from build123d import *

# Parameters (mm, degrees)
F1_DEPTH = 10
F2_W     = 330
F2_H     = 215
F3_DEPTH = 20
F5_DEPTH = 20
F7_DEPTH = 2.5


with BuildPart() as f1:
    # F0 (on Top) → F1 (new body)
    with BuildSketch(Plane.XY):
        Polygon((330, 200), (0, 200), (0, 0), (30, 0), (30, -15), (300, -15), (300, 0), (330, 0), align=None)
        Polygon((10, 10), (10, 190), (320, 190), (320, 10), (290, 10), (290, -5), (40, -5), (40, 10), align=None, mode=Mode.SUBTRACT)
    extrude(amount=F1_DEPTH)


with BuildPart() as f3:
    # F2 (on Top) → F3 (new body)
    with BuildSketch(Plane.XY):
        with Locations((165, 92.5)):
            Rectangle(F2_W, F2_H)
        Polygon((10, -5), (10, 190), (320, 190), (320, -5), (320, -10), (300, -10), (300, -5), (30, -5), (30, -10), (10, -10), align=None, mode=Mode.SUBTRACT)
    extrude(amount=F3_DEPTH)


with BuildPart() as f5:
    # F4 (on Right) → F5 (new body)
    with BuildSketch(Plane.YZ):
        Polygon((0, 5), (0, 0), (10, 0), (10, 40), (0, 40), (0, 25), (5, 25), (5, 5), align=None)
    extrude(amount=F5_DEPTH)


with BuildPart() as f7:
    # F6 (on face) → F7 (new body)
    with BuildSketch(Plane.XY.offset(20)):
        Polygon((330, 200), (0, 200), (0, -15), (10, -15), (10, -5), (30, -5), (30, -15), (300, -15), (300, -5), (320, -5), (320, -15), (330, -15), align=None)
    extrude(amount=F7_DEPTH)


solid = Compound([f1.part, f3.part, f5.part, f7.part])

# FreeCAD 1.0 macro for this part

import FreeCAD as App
import Part
import Sketcher

V = App.Vector

doc = App.newDocument("Part")
body = doc.addObject("PartDesign::Body", "Body")

sketch1 = body.newObject("Sketcher::SketchObject", "Sketch")
sketch1.AttachmentSupport = (doc.getObject("XY_Plane"), [""])
sketch1.MapMode = "FlatFace"
sketch1.addGeometry([
    Part.LineSegment(V(330, 200, 0), V(0, 200, 0)),
    Part.LineSegment(V(0, 200, 0), V(0, 0, 0)),
    Part.LineSegment(V(0, 0, 0), V(30, 0, 0)),
    Part.LineSegment(V(30, 0, 0), V(30, -15, 0)),
    Part.LineSegment(V(30, -15, 0), V(300, -15, 0)),
    Part.LineSegment(V(300, -15, 0), V(300, 0, 0)),
    Part.LineSegment(V(300, 0, 0), V(330, 0, 0)),
    Part.LineSegment(V(330, 0, 0), V(330, 200, 0)),
    Part.LineSegment(V(40, 10, 0), V(10, 10, 0)),
    Part.LineSegment(V(10, 10, 0), V(10, 190, 0)),
    Part.LineSegment(V(10, 190, 0), V(320, 190, 0)),
    Part.LineSegment(V(320, 190, 0), V(320, 10, 0)),
    Part.LineSegment(V(320, 10, 0), V(290, 10, 0)),
    Part.LineSegment(V(290, 10, 0), V(290, -5, 0)),
    Part.LineSegment(V(290, -5, 0), V(40, -5, 0)),
    Part.LineSegment(V(40, -5, 0), V(40, 10, 0)),
], False)
sketch1.addConstraint([
    Sketcher.Constraint("Coincident", 0, 2, 1, 1),
    Sketcher.Constraint("Coincident", 1, 2, 2, 1),
    Sketcher.Constraint("Coincident", 2, 2, 3, 1),
    Sketcher.Constraint("Coincident", 3, 2, 4, 1),
    Sketcher.Constraint("Coincident", 4, 2, 5, 1),
    Sketcher.Constraint("Coincident", 5, 2, 6, 1),
    Sketcher.Constraint("Coincident", 6, 2, 7, 1),
    Sketcher.Constraint("Coincident", 7, 2, 0, 1),
    Sketcher.Constraint("Coincident", 8, 2, 9, 1),
    Sketcher.Constraint("Coincident", 9, 2, 10, 1),
    Sketcher.Constraint("Coincident", 10, 2, 11, 1),
    Sketcher.Constraint("Coincident", 11, 2, 12, 1),
    Sketcher.Constraint("Coincident", 12, 2, 13, 1),
    Sketcher.Constraint("Coincident", 13, 2, 14, 1),
    Sketcher.Constraint("Coincident", 14, 2, 15, 1),
    Sketcher.Constraint("Coincident", 15, 2, 8, 1),
    Sketcher.Constraint("Horizontal", 0),
    Sketcher.Constraint("Vertical", 1),
    Sketcher.Constraint("Horizontal", 2),
    Sketcher.Constraint("Vertical", 3),
    Sketcher.Constraint("Horizontal", 4),
    Sketcher.Constraint("Vertical", 5),
    Sketcher.Constraint("Horizontal", 6),
    Sketcher.Constraint("Vertical", 7),
    Sketcher.Constraint("Horizontal", 8),
    Sketcher.Constraint("Vertical", 9),
    Sketcher.Constraint("Horizontal", 10),
    Sketcher.Constraint("Vertical", 11),
    Sketcher.Constraint("Horizontal", 12),
    Sketcher.Constraint("Vertical", 13),
    Sketcher.Constraint("Horizontal", 14),
    Sketcher.Constraint("Vertical", 15),
    Sketcher.Constraint("Coincident", 1, 2, -1, 1),
    Sketcher.Constraint("PointOnObject", 5, 2, -1),
    Sketcher.Constraint("Horizontal", 8, 2, 11, 2),
    Sketcher.Constraint("Equal", 2, 6),
    Sketcher.Constraint("Equal", 6, 8),
    Sketcher.Constraint("Equal", 8, 12),
    Sketcher.Constraint("Equal", 5, 13),
    Sketcher.Constraint("DistanceX", 0, 2, 0, 1, 330.0),
    Sketcher.Constraint("DistanceX", 2, 1, 2, 2, 30.0),
    Sketcher.Constraint("DistanceX", 10, 1, 10, 2, 310.0),
    Sketcher.Constraint("DistanceY", 1, 2, 1, 1, 200.0),
    Sketcher.Constraint("DistanceY", 3, 2, 3, 1, 15.0),
    Sketcher.Constraint("DistanceY", 9, 1, 9, 2, 180.0),
    Sketcher.Constraint("DistanceX", -1, 1, 8, 2, 10.0),
    Sketcher.Constraint("DistanceY", -1, 1, 8, 2, 10.0),
])
pad1 = body.newObject("PartDesign::Pad", "Pad")
pad1.Profile = sketch1
pad1.Length = 10
body2 = doc.addObject("PartDesign::Body", "Body001")

sketch2 = body2.newObject("Sketcher::SketchObject", "Sketch001")
sketch2.AttachmentSupport = (doc.getObject("XY_Plane001"), [""])
sketch2.MapMode = "FlatFace"
sketch2.addGeometry([
    Part.LineSegment(V(0, 200, 0), V(0, -15, 0)),
    Part.LineSegment(V(0, -15, 0), V(330, -15, 0)),
    Part.LineSegment(V(330, -15, 0), V(330, 200, 0)),
    Part.LineSegment(V(330, 200, 0), V(0, 200, 0)),
    Part.LineSegment(V(10, -10, 0), V(10, 190, 0)),
    Part.LineSegment(V(10, 190, 0), V(320, 190, 0)),
    Part.LineSegment(V(320, 190, 0), V(320, -10, 0)),
    Part.LineSegment(V(320, -10, 0), V(300, -10, 0)),
    Part.LineSegment(V(300, -10, 0), V(300, -5, 0)),
    Part.LineSegment(V(300, -5, 0), V(30, -5, 0)),
    Part.LineSegment(V(30, -5, 0), V(30, -10, 0)),
    Part.LineSegment(V(30, -10, 0), V(10, -10, 0)),
], False)
sketch2.addConstraint([
    Sketcher.Constraint("Coincident", 0, 2, 1, 1),
    Sketcher.Constraint("Coincident", 1, 2, 2, 1),
    Sketcher.Constraint("Coincident", 2, 2, 3, 1),
    Sketcher.Constraint("Coincident", 3, 2, 0, 1),
    Sketcher.Constraint("Coincident", 4, 2, 5, 1),
    Sketcher.Constraint("Coincident", 5, 2, 6, 1),
    Sketcher.Constraint("Coincident", 6, 2, 7, 1),
    Sketcher.Constraint("Coincident", 7, 2, 8, 1),
    Sketcher.Constraint("Coincident", 8, 2, 9, 1),
    Sketcher.Constraint("Coincident", 9, 2, 10, 1),
    Sketcher.Constraint("Coincident", 10, 2, 11, 1),
    Sketcher.Constraint("Coincident", 11, 2, 4, 1),
    Sketcher.Constraint("Vertical", 0),
    Sketcher.Constraint("Horizontal", 1),
    Sketcher.Constraint("Vertical", 2),
    Sketcher.Constraint("Horizontal", 3),
    Sketcher.Constraint("Vertical", 4),
    Sketcher.Constraint("Horizontal", 5),
    Sketcher.Constraint("Vertical", 6),
    Sketcher.Constraint("Horizontal", 7),
    Sketcher.Constraint("Vertical", 8),
    Sketcher.Constraint("Horizontal", 9),
    Sketcher.Constraint("Vertical", 10),
    Sketcher.Constraint("Horizontal", 11),
    Sketcher.Constraint("PointOnObject", 0, 2, -2),
    Sketcher.Constraint("Horizontal", 7, 2, 10, 2),
    Sketcher.Constraint("Equal", 7, 11),
    Sketcher.Constraint("DistanceX", 1, 1, 1, 2, 330.0),
    Sketcher.Constraint("DistanceX", 5, 1, 5, 2, 310.0),
    Sketcher.Constraint("DistanceX", 7, 2, 7, 1, 20.0),
    Sketcher.Constraint("DistanceY", 0, 2, 0, 1, 215.0),
    Sketcher.Constraint("DistanceY", 4, 1, 4, 2, 200.0),
    Sketcher.Constraint("DistanceY", 8, 1, 8, 2, 5.0),
    Sketcher.Constraint("DistanceY", 0, 2, -1, 1, 15.0),
    Sketcher.Constraint("DistanceX", -1, 1, 4, 2, 10.0),
    Sketcher.Constraint("DistanceY", -1, 1, 4, 2, 190.0),
])
pad2 = body2.newObject("PartDesign::Pad", "Pad001")
pad2.Profile = sketch2
pad2.Length = 20
body3 = doc.addObject("PartDesign::Body", "Body002")

sketch3 = body3.newObject("Sketcher::SketchObject", "Sketch002")
sketch3.AttachmentSupport = (doc.getObject("YZ_Plane002"), [""])
sketch3.MapMode = "FlatFace"
sketch3.addGeometry([
    Part.LineSegment(V(0, 5, 0), V(0, 0, 0)),
    Part.LineSegment(V(0, 0, 0), V(10, 0, 0)),
    Part.LineSegment(V(10, 0, 0), V(10, 40, 0)),
    Part.LineSegment(V(10, 40, 0), V(0, 40, 0)),
    Part.LineSegment(V(0, 40, 0), V(0, 25, 0)),
    Part.LineSegment(V(0, 25, 0), V(5, 25, 0)),
    Part.LineSegment(V(5, 25, 0), V(5, 5, 0)),
    Part.LineSegment(V(5, 5, 0), V(0, 5, 0)),
], False)
sketch3.addConstraint([
    Sketcher.Constraint("Coincident", 0, 2, 1, 1),
    Sketcher.Constraint("Coincident", 1, 2, 2, 1),
    Sketcher.Constraint("Coincident", 2, 2, 3, 1),
    Sketcher.Constraint("Coincident", 3, 2, 4, 1),
    Sketcher.Constraint("Coincident", 4, 2, 5, 1),
    Sketcher.Constraint("Coincident", 5, 2, 6, 1),
    Sketcher.Constraint("Coincident", 6, 2, 7, 1),
    Sketcher.Constraint("Coincident", 7, 2, 0, 1),
    Sketcher.Constraint("Vertical", 0),
    Sketcher.Constraint("Horizontal", 1),
    Sketcher.Constraint("Vertical", 2),
    Sketcher.Constraint("Horizontal", 3),
    Sketcher.Constraint("Vertical", 4),
    Sketcher.Constraint("Horizontal", 5),
    Sketcher.Constraint("Vertical", 6),
    Sketcher.Constraint("Horizontal", 7),
    Sketcher.Constraint("Coincident", 0, 2, -1, 1),
    Sketcher.Constraint("PointOnObject", 3, 2, -2),
    Sketcher.Constraint("Equal", 7, 0),
    Sketcher.Constraint("DistanceX", 1, 1, 1, 2, 10.0),
    Sketcher.Constraint("DistanceX", 5, 1, 5, 2, 5.0),
    Sketcher.Constraint("DistanceY", 2, 1, 2, 2, 40.0),
    Sketcher.Constraint("DistanceY", 4, 2, 4, 1, 15.0),
])
pad3 = body3.newObject("PartDesign::Pad", "Pad002")
pad3.Profile = sketch3
pad3.Length = 20
body4 = doc.addObject("PartDesign::Body", "Body003")

sketch4 = body4.newObject("Sketcher::SketchObject", "Sketch003")
sketch4.AttachmentSupport = (doc.getObject("XY_Plane003"), [""])
sketch4.MapMode = "FlatFace"
sketch4.AttachmentOffset = App.Placement(V(0, 0, 20), App.Rotation())
sketch4.addGeometry([
    Part.LineSegment(V(330, 200, 0), V(0, 200, 0)),
    Part.LineSegment(V(0, 200, 0), V(0, -15, 0)),
    Part.LineSegment(V(0, -15, 0), V(10, -15, 0)),
    Part.LineSegment(V(10, -15, 0), V(10, -5, 0)),
    Part.LineSegment(V(10, -5, 0), V(30, -5, 0)),
    Part.LineSegment(V(30, -5, 0), V(30, -15, 0)),
    Part.LineSegment(V(30, -15, 0), V(300, -15, 0)),
    Part.LineSegment(V(300, -15, 0), V(300, -5, 0)),
    Part.LineSegment(V(300, -5, 0), V(320, -5, 0)),
    Part.LineSegment(V(320, -5, 0), V(320, -15, 0)),
    Part.LineSegment(V(320, -15, 0), V(330, -15, 0)),
    Part.LineSegment(V(330, -15, 0), V(330, 200, 0)),
], False)
sketch4.addConstraint([
    Sketcher.Constraint("Coincident", 0, 2, 1, 1),
    Sketcher.Constraint("Coincident", 1, 2, 2, 1),
    Sketcher.Constraint("Coincident", 2, 2, 3, 1),
    Sketcher.Constraint("Coincident", 3, 2, 4, 1),
    Sketcher.Constraint("Coincident", 4, 2, 5, 1),
    Sketcher.Constraint("Coincident", 5, 2, 6, 1),
    Sketcher.Constraint("Coincident", 6, 2, 7, 1),
    Sketcher.Constraint("Coincident", 7, 2, 8, 1),
    Sketcher.Constraint("Coincident", 8, 2, 9, 1),
    Sketcher.Constraint("Coincident", 9, 2, 10, 1),
    Sketcher.Constraint("Coincident", 10, 2, 11, 1),
    Sketcher.Constraint("Coincident", 11, 2, 0, 1),
    Sketcher.Constraint("Horizontal", 0),
    Sketcher.Constraint("Vertical", 1),
    Sketcher.Constraint("Horizontal", 2),
    Sketcher.Constraint("Vertical", 3),
    Sketcher.Constraint("Horizontal", 4),
    Sketcher.Constraint("Vertical", 5),
    Sketcher.Constraint("Horizontal", 6),
    Sketcher.Constraint("Vertical", 7),
    Sketcher.Constraint("Horizontal", 8),
    Sketcher.Constraint("Vertical", 9),
    Sketcher.Constraint("Horizontal", 10),
    Sketcher.Constraint("Vertical", 11),
    Sketcher.Constraint("PointOnObject", 0, 2, -2),
    Sketcher.Constraint("Horizontal", 2, 2, 5, 2),
    Sketcher.Constraint("Horizontal", 4, 2, 7, 2),
    Sketcher.Constraint("Horizontal", 6, 2, 9, 2),
    Sketcher.Constraint("Equal", 4, 8),
    Sketcher.Constraint("Equal", 2, 10),
    Sketcher.Constraint("Equal", 10, 3),
    Sketcher.Constraint("DistanceX", 0, 2, 0, 1, 330.0),
    Sketcher.Constraint("DistanceX", 2, 1, 2, 2, 10.0),
    Sketcher.Constraint("DistanceX", 4, 1, 4, 2, 20.0),
    Sketcher.Constraint("DistanceY", 1, 2, 1, 1, 215.0),
    Sketcher.Constraint("DistanceY", -1, 1, 0, 2, 200.0),
])
pad4 = body4.newObject("PartDesign::Pad", "Pad003")
pad4.Profile = sketch4
pad4.Length = 2.5

doc.recompute()
